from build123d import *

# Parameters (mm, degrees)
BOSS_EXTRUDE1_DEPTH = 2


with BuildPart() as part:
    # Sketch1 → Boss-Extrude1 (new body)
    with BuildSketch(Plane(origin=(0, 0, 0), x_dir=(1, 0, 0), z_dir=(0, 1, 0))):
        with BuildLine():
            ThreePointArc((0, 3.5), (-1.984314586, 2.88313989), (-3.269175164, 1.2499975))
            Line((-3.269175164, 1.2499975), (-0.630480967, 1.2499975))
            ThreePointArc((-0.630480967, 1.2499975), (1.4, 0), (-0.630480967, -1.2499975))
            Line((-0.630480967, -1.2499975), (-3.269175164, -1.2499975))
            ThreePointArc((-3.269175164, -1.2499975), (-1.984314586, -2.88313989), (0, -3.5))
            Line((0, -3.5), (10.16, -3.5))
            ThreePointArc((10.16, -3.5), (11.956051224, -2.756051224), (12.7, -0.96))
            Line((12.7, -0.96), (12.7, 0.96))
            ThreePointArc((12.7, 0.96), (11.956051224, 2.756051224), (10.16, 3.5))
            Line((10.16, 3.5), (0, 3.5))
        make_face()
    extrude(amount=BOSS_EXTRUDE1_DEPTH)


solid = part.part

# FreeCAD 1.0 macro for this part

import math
import FreeCAD as App
import Part
import Sketcher
from FreeCAD import Vector

doc = App.newDocument("Part")
body = doc.addObject("PartDesign::Body", "Body")

sketch1 = body.newObject("Sketcher::SketchObject", "Sketch")
sketch1.AttachmentSupport = (doc.getObject("XZ_Plane"), [""])
sketch1.MapMode = "FlatFace"
sketch1.addGeometry([
    Part.ArcOfCircle(Part.Circle(Vector(0, 0, 0), Vector(0, 0, 1), 3.5), math.radians(-159), math.radians(-90)),
    Part.LineSegment(Vector(-3.3, -1.2, 0), Vector(-0.6, -1.2, 0)),
    Part.ArcOfCircle(Part.Circle(Vector(0, 0, 0), Vector(0, 0, 1), 1.4), math.radians(-117), math.radians(117)),
    Part.LineSegment(Vector(-0.6, 1.2, 0), Vector(-3.3, 1.2, 0)),
    Part.ArcOfCircle(Part.Circle(Vector(0, 0, 0), Vector(0, 0, 1), 3.5), math.radians(90), math.radians(159)),
    Part.LineSegment(Vector(0, 3.5, 0), Vector(10.2, 3.5, 0)),
    Part.ArcOfCircle(Part.Circle(Vector(10.2, 1, 0), Vector(0, 0, 1), 2.5), math.radians(0), math.radians(90)),
    Part.LineSegment(Vector(12.7, 1, 0), Vector(12.7, -1, 0)),
    Part.ArcOfCircle(Part.Circle(Vector(10.2, -1, 0), Vector(0, 0, 1), 2.5), math.radians(-90), math.radians(0)),
    Part.LineSegment(Vector(10.2, -3.5, 0), Vector(0, -3.5, 0)),
], False)
sketch1.addConstraint([
    Sketcher.Constraint("Coincident", 0, 1, 1, 1),
    Sketcher.Constraint("Coincident", 1, 2, 2, 1),
    Sketcher.Constraint("Coincident", 2, 2, 3, 1),
    Sketcher.Constraint("Coincident", 3, 2, 4, 2),
    Sketcher.Constraint("Tangent", 4, 1, 5, 1),
    Sketcher.Constraint("Tangent", 5, 2, 6, 2),
    Sketcher.Constraint("Tangent", 6, 1, 7, 1),
    Sketcher.Constraint("Tangent", 7, 2, 8, 2),
    Sketcher.Constraint("Tangent", 8, 1, 9, 1),
    Sketcher.Constraint("Tangent", 9, 2, 0, 2),
    Sketcher.Constraint("Horizontal", 1),
    Sketcher.Constraint("Horizontal", 3),
    Sketcher.Constraint("Horizontal", 5),
    Sketcher.Constraint("Vertical", 7),
    Sketcher.Constraint("Horizontal", 9),
    Sketcher.Constraint("Coincident", 0, 3, -1, 1),
    Sketcher.Constraint("Coincident", 2, 3, -1, 1),
    Sketcher.Constraint("Coincident", 4, 3, -1, 1),
    Sketcher.Constraint("Equal", 0, 4),
    Sketcher.Constraint("Equal", 6, 8),
    Sketcher.Constraint("Vertical", 1, 2, 2, 2),
    Sketcher.Constraint("Radius", 0, 3.5),
    Sketcher.Constraint("Radius", 2, 1.4),
    Sketcher.Constraint("Radius", 6, 2.54),
    Sketcher.Constraint("DistanceX", 5, 1, 5, 2, 10.16),
    Sketcher.Constraint("DistanceX", 1, 1, 1, 2, 2.638694),
])
pad1 = body.newObject("PartDesign::Pad", "Pad")
pad1.Profile = sketch1
pad1.Length = 2
pad1.Reversed = True

doc.recompute()
